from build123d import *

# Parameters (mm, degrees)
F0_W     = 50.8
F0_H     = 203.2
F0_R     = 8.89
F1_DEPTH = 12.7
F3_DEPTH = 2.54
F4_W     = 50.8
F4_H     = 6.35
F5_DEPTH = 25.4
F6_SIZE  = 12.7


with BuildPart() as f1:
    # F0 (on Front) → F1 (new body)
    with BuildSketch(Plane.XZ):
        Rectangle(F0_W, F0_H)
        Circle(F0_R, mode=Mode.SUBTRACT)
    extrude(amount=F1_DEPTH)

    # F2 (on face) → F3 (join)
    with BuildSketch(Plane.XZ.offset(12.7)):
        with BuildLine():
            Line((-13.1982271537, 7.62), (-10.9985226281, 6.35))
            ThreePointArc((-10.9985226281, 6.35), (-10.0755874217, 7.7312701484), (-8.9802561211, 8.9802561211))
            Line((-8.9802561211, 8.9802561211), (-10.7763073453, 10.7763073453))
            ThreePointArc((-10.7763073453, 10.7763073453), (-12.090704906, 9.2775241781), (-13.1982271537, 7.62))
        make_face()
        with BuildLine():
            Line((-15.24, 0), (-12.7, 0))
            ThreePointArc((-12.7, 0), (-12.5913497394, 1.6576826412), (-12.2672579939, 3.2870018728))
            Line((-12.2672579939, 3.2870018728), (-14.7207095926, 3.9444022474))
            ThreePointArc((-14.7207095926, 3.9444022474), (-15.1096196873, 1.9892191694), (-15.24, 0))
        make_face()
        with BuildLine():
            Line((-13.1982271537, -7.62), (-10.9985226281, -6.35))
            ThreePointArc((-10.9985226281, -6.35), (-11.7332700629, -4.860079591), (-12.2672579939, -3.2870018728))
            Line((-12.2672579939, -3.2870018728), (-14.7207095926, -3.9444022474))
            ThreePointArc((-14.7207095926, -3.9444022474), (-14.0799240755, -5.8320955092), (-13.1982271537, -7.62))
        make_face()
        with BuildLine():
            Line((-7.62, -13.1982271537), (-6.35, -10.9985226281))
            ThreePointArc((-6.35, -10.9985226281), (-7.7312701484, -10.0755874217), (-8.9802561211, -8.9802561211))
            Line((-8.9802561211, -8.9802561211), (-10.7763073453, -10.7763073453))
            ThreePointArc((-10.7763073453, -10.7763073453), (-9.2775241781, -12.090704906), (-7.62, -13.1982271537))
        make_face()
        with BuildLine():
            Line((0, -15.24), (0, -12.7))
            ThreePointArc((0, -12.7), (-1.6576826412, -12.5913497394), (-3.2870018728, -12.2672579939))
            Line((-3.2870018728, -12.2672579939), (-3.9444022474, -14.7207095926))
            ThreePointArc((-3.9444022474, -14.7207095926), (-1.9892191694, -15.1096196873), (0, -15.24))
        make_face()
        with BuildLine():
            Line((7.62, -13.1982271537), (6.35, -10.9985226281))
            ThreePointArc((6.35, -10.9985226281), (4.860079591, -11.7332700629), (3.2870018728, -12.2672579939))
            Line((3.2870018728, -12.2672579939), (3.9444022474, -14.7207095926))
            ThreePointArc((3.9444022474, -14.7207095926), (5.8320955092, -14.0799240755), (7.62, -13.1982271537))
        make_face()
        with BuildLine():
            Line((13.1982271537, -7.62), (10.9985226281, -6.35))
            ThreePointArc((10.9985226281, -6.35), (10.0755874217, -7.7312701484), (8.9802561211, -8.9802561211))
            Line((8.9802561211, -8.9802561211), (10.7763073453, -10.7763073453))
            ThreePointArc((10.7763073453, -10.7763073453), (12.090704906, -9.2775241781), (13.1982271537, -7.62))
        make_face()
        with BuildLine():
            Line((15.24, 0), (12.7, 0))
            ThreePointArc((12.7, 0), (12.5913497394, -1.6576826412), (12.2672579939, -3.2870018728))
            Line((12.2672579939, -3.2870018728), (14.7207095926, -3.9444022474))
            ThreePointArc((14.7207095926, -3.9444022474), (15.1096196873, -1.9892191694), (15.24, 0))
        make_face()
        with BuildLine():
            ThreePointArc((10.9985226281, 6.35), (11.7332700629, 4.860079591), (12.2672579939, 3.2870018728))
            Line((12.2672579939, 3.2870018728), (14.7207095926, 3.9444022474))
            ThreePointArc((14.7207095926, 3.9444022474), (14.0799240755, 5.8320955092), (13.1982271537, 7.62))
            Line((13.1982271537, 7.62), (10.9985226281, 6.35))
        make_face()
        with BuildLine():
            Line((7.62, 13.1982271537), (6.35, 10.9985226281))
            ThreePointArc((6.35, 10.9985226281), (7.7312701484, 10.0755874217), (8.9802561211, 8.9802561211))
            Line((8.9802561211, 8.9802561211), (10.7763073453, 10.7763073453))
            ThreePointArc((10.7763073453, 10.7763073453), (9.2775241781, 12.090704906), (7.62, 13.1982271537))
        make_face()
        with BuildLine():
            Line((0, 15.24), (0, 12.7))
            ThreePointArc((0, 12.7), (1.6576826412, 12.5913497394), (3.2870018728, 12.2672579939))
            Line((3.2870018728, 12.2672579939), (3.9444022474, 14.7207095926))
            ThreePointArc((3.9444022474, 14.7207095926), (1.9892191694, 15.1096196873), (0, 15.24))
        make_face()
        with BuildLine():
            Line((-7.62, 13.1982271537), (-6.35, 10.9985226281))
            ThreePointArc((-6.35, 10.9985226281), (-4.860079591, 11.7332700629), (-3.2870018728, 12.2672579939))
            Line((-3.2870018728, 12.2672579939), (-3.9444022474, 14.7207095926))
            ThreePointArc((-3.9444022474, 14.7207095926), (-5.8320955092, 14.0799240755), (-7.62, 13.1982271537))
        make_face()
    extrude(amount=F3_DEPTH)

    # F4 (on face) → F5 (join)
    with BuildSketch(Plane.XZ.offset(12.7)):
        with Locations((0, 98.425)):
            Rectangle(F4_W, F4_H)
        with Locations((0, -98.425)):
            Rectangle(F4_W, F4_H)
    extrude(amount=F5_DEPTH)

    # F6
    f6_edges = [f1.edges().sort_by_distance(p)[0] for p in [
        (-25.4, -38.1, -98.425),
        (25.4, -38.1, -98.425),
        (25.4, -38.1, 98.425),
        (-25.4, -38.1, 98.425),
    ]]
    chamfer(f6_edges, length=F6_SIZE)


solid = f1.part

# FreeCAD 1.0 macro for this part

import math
import FreeCAD as App
import Part
import Sketcher
from FreeCAD import Vector
Q = App.Units.Quantity


def edges_at(feature, points):
    """Names of the edges that pass closest to the given points."""
    edges = feature.Shape.Edges
    near = lambda p: min(range(len(edges)), key=lambda i: edges[i].distToShape(Part.Vertex(*p))[0])
    return sorted({f"Edge{near(p) + 1}" for p in points})

doc = App.newDocument("Part")
body = doc.addObject("PartDesign::Body", "Body")

# Sketch on XZ plane
sketch1 = doc.addObject("Sketcher::SketchObject", "Sketch")
body.addObject(sketch1)
sketch1.AttachmentSupport = (doc.XZ_Plane, [""])
sketch1.MapMode = "FlatFace"
sketch1.addGeometry([
    Part.LineSegment(Vector(-25.4, 101.6, 0), Vector(-25.4, -101.6, 0)),  # 0
    Part.LineSegment(Vector(-25.4, -101.6, 0), Vector(25.4, -101.6, 0)),  # 1
    Part.LineSegment(Vector(25.4, -101.6, 0), Vector(25.4, 101.6, 0)),  # 2
    Part.LineSegment(Vector(25.4, 101.6, 0), Vector(-25.4, 101.6, 0)),  # 3
    Part.Circle(Vector(0, 0, 0), Vector(0, 0, 1), 8.89),  # 4
], False)
sketch1.addConstraint([
    Sketcher.Constraint("Coincident", 0, 2, 1, 1),
    Sketcher.Constraint("Coincident", 1, 2, 2, 1),
    Sketcher.Constraint("Coincident", 2, 2, 3, 1),
    Sketcher.Constraint("Coincident", 3, 2, 0, 1),
    Sketcher.Constraint("Vertical", 0),
    Sketcher.Constraint("Horizontal", 1),
    Sketcher.Constraint("Vertical", 2),
    Sketcher.Constraint("Horizontal", 3),
    Sketcher.Constraint("Coincident", 4, 3, -1, 1),
    Sketcher.Constraint("Symmetric", 0, 2, 2, 2, -1, 1),
    Sketcher.Constraint("Diameter", 4, Q("0.7 in")),
    Sketcher.Constraint("DistanceX", 1, 1, 1, 2, Q("2 in")),
    Sketcher.Constraint("DistanceY", 0, 2, 0, 1, Q("8 in")),
])
pad1 = doc.addObject("PartDesign::Pad", "Pad")
body.addObject(pad1)
pad1.Profile = sketch1
pad1.Length = Q("0.5 in")

# Sketch on XZ plane
sketch2 = doc.addObject("Sketcher::SketchObject", "Sketch001")
body.addObject(sketch2)
sketch2.AttachmentSupport = (doc.XZ_Plane, [""])
sketch2.MapMode = "FlatFace"
sketch2.AttachmentOffset = App.Placement(Vector(0, 0, 0.5 * 25.4), App.Rotation())
sketch2.addGeometry([
    Part.LineSegment(Vector(-13.198227, 7.62, 0), Vector(-10.998523, 6.35, 0)),  # 0
    Part.ArcOfCircle(Part.Circle(Vector(0, 0, 0), Vector(0, 0, 1), 12.7), math.radians(135), math.radians(150)),  # 1
    Part.LineSegment(Vector(-8.980256, 8.980256, 0), Vector(-10.776307, 10.776307, 0)),  # 2
    Part.ArcOfCircle(Part.Circle(Vector(0, 0, 0), Vector(0, 0, 1), 15.24), math.radians(135), math.radians(150)),  # 3
    Part.LineSegment(Vector(-15.24, 0, 0), Vector(-12.7, 0, 0)),  # 4
    Part.ArcOfCircle(Part.Circle(Vector(0, 0, 0), Vector(0, 0, 1), 12.7), math.radians(165), math.radians(180)),  # 5
    Part.LineSegment(Vector(-12.267258, 3.287002, 0), Vector(-14.72071, 3.944402, 0)),  # 6
    Part.ArcOfCircle(Part.Circle(Vector(0, 0, 0), Vector(0, 0, 1), 15.24), math.radians(165), math.radians(180)),  # 7
    Part.LineSegment(Vector(-13.198227, -7.62, 0), Vector(-10.998523, -6.35, 0)),  # 8
    Part.ArcOfCircle(Part.Circle(Vector(0, 0, 0), Vector(0, 0, 1), 12.7), math.radians(-165), math.radians(-150)),  # 9
    Part.LineSegment(Vector(-12.267258, -3.287002, 0), Vector(-14.72071, -3.944402, 0)),  # 10
    Part.ArcOfCircle(Part.Circle(Vector(0, 0, 0), Vector(0, 0, 1), 15.24), math.radians(-165), math.radians(-150)),  # 11
    Part.LineSegment(Vector(-7.62, -13.198227, 0), Vector(-6.35, -10.998523, 0)),  # 12
    Part.ArcOfCircle(Part.Circle(Vector(0, 0, 0), Vector(0, 0, 1), 12.7), math.radians(-135), math.radians(-120)),  # 13
    Part.LineSegment(Vector(-8.980256, -8.980256, 0), Vector(-10.776307, -10.776307, 0)),  # 14
    Part.ArcOfCircle(Part.Circle(Vector(0, 0, 0), Vector(0, 0, 1), 15.24), math.radians(-135), math.radians(-120)),  # 15
    Part.LineSegment(Vector(0, -15.24, 0), Vector(0, -12.7, 0)),  # 16
    Part.ArcOfCircle(Part.Circle(Vector(0, 0, 0), Vector(0, 0, 1), 12.7), math.radians(-105), math.radians(-90)),  # 17
    Part.LineSegment(Vector(-3.287002, -12.267258, 0), Vector(-3.944402, -14.72071, 0)),  # 18
    Part.ArcOfCircle(Part.Circle(Vector(0, 0, 0), Vector(0, 0, 1), 15.24), math.radians(-105), math.radians(-90)),  # 19
    Part.LineSegment(Vector(7.62, -13.198227, 0), Vector(6.35, -10.998523, 0)),  # 20
    Part.ArcOfCircle(Part.Circle(Vector(0, 0, 0), Vector(0, 0, 1), 12.7), math.radians(-75), math.radians(-60)),  # 21
    Part.LineSegment(Vector(3.287002, -12.267258, 0), Vector(3.944402, -14.72071, 0)),  # 22
    Part.ArcOfCircle(Part.Circle(Vector(0, 0, 0), Vector(0, 0, 1), 15.24), math.radians(-75), math.radians(-60)),  # 23
    Part.LineSegment(Vector(13.198227, -7.62, 0), Vector(10.998523, -6.35, 0)),  # 24
    Part.ArcOfCircle(Part.Circle(Vector(0, 0, 0), Vector(0, 0, 1), 12.7), math.radians(-45), math.radians(-30)),  # 25
    Part.LineSegment(Vector(8.980256, -8.980256, 0), Vector(10.776307, -10.776307, 0)),  # 26
    Part.ArcOfCircle(Part.Circle(Vector(0, 0, 0), Vector(0, 0, 1), 15.24), math.radians(-45), math.radians(-30)),  # 27
    Part.LineSegment(Vector(15.24, 0, 0), Vector(12.7, 0, 0)),  # 28
    Part.ArcOfCircle(Part.Circle(Vector(0, 0, 0), Vector(0, 0, 1), 12.7), math.radians(-15), math.radians(0)),  # 29
    Part.LineSegment(Vector(12.267258, -3.287002, 0), Vector(14.72071, -3.944402, 0)),  # 30
    Part.ArcOfCircle(Part.Circle(Vector(0, 0, 0), Vector(0, 0, 1), 15.24), math.radians(-15), math.radians(0)),  # 31
    Part.ArcOfCircle(Part.Circle(Vector(0, 0, 0), Vector(0, 0, 1), 12.7), math.radians(15), math.radians(30)),  # 32
    Part.LineSegment(Vector(12.267258, 3.287002, 0), Vector(14.72071, 3.944402, 0)),  # 33
    Part.ArcOfCircle(Part.Circle(Vector(0, 0, 0), Vector(0, 0, 1), 15.24), math.radians(15), math.radians(30)),  # 34
    Part.LineSegment(Vector(13.198227, 7.62, 0), Vector(10.998523, 6.35, 0)),  # 35
    Part.LineSegment(Vector(7.62, 13.198227, 0), Vector(6.35, 10.998523, 0)),  # 36
    Part.ArcOfCircle(Part.Circle(Vector(0, 0, 0), Vector(0, 0, 1), 12.7), math.radians(45), math.radians(60)),  # 37
    Part.LineSegment(Vector(8.980256, 8.980256, 0), Vector(10.776307, 10.776307, 0)),  # 38
    Part.ArcOfCircle(Part.Circle(Vector(0, 0, 0), Vector(0, 0, 1), 15.24), math.radians(45), math.radians(60)),  # 39
    Part.LineSegment(Vector(0, 15.24, 0), Vector(0, 12.7, 0)),  # 40
    Part.ArcOfCircle(Part.Circle(Vector(0, 0, 0), Vector(0, 0, 1), 12.7), math.radians(75), math.radians(90)),  # 41
    Part.LineSegment(Vector(3.287002, 12.267258, 0), Vector(3.944402, 14.72071, 0)),  # 42
    Part.ArcOfCircle(Part.Circle(Vector(0, 0, 0), Vector(0, 0, 1), 15.24), math.radians(75), math.radians(90)),  # 43
    Part.LineSegment(Vector(-7.62, 13.198227, 0), Vector(-6.35, 10.998523, 0)),  # 44
    Part.ArcOfCircle(Part.Circle(Vector(0, 0, 0), Vector(0, 0, 1), 12.7), math.radians(105), math.radians(120)),  # 45
    Part.LineSegment(Vector(-3.287002, 12.267258, 0), Vector(-3.944402, 14.72071, 0)),  # 46
    Part.ArcOfCircle(Part.Circle(Vector(0, 0, 0), Vector(0, 0, 1), 15.24), math.radians(105), math.radians(120)),  # 47
], False)
sketch2.addConstraint([
    Sketcher.Constraint("Coincident", 0, 2, 1, 2),
    Sketcher.Constraint("Coincident", 1, 1, 2, 1),
    Sketcher.Constraint("Coincident", 2, 2, 3, 1),
    Sketcher.Constraint("Coincident", 3, 2, 0, 1),
    Sketcher.Constraint("Coincident", 4, 2, 5, 2),
    Sketcher.Constraint("Coincident", 5, 1, 6, 1),
    Sketcher.Constraint("Coincident", 6, 2, 7, 1),
    Sketcher.Constraint("Coincident", 7, 2, 4, 1),
    Sketcher.Constraint("Coincident", 8, 2, 9, 2),
    Sketcher.Constraint("Coincident", 9, 1, 10, 1),
    Sketcher.Constraint("Coincident", 10, 2, 11, 1),
    Sketcher.Constraint("Coincident", 11, 2, 8, 1),
    Sketcher.Constraint("Coincident", 12, 2, 13, 2),
    Sketcher.Constraint("Coincident", 13, 1, 14, 1),
    Sketcher.Constraint("Coincident", 14, 2, 15, 1),
    Sketcher.Constraint("Coincident", 15, 2, 12, 1),
    Sketcher.Constraint("Coincident", 16, 2, 17, 2),
    Sketcher.Constraint("Coincident", 17, 1, 18, 1),
    Sketcher.Constraint("Coincident", 18, 2, 19, 1),
    Sketcher.Constraint("Coincident", 19, 2, 16, 1),
    Sketcher.Constraint("Coincident", 20, 2, 21, 2),
    Sketcher.Constraint("Coincident", 21, 1, 22, 1),
    Sketcher.Constraint("Coincident", 22, 2, 23, 1),
    Sketcher.Constraint("Coincident", 23, 2, 20, 1),
    Sketcher.Constraint("Coincident", 24, 2, 25, 2),
    Sketcher.Constraint("Coincident", 25, 1, 26, 1),
    Sketcher.Constraint("Coincident", 26, 2, 27, 1),
    Sketcher.Constraint("Coincident", 27, 2, 24, 1),
    Sketcher.Constraint("Coincident", 28, 2, 29, 2),
    Sketcher.Constraint("Coincident", 29, 1, 30, 1),
    Sketcher.Constraint("Coincident", 30, 2, 31, 1),
    Sketcher.Constraint("Coincident", 31, 2, 28, 1),
    Sketcher.Constraint("Coincident", 32, 1, 33, 1),
    Sketcher.Constraint("Coincident", 33, 2, 34, 1),
    Sketcher.Constraint("Coincident", 34, 2, 35, 1),
    Sketcher.Constraint("Coincident", 35, 2, 32, 2),
    Sketcher.Constraint("Coincident", 36, 2, 37, 2),
    Sketcher.Constraint("Coincident", 37, 1, 38, 1),
    Sketcher.Constraint("Coincident", 38, 2, 39, 1),
    Sketcher.Constraint("Coincident", 39, 2, 36, 1),
    Sketcher.Constraint("Coincident", 40, 2, 41, 2),
    Sketcher.Constraint("Coincident", 41, 1, 42, 1),
    Sketcher.Constraint("Coincident", 42, 2, 43, 1),
    Sketcher.Constraint("Coincident", 43, 2, 40, 1),
    Sketcher.Constraint("Coincident", 44, 2, 45, 2),
    Sketcher.Constraint("Coincident", 45, 1, 46, 1),
    Sketcher.Constraint("Coincident", 46, 2, 47, 1),
    Sketcher.Constraint("Coincident", 47, 2, 44, 1),
    Sketcher.Constraint("Horizontal", 4),
    Sketcher.Constraint("Vertical", 16),
    Sketcher.Constraint("Horizontal", 28),
    Sketcher.Constraint("Vertical", 40),
    Sketcher.Constraint("Coincident", 1, 3, -1, 1),
    Sketcher.Constraint("Coincident", 3, 3, -1, 1),
    Sketcher.Constraint("Coincident", 5, 3, -1, 1),
    Sketcher.Constraint("Coincident", 7, 3, -1, 1),
    Sketcher.Constraint("Coincident", 9, 3, -1, 1),
    Sketcher.Constraint("Coincident", 11, 3, -1, 1),
    Sketcher.Constraint("Coincident", 13, 3, -1, 1),
    Sketcher.Constraint("Coincident", 15, 3, -1, 1),
    Sketcher.Constraint("Coincident", 17, 3, -1, 1),
    Sketcher.Constraint("Coincident", 19, 3, -1, 1),
    Sketcher.Constraint("Coincident", 21, 3, -1, 1),
    Sketcher.Constraint("Coincident", 23, 3, -1, 1),
    Sketcher.Constraint("Coincident", 25, 3, -1, 1),
    Sketcher.Constraint("Coincident", 27, 3, -1, 1),
    Sketcher.Constraint("Coincident", 29, 3, -1, 1),
    Sketcher.Constraint("Coincident", 31, 3, -1, 1),
    Sketcher.Constraint("Coincident", 32, 3, -1, 1),
    Sketcher.Constraint("Coincident", 34, 3, -1, 1),
    Sketcher.Constraint("Coincident", 37, 3, -1, 1),
    Sketcher.Constraint("Coincident", 39, 3, -1, 1),
    Sketcher.Constraint("Coincident", 41, 3, -1, 1),
    Sketcher.Constraint("Coincident", 43, 3, -1, 1),
    Sketcher.Constraint("Coincident", 45, 3, -1, 1),
    Sketcher.Constraint("Coincident", 47, 3, -1, 1),
    Sketcher.Constraint("Equal", 1, 5),
    Sketcher.Constraint("Equal", 3, 7),
    Sketcher.Constraint("Equal", 5, 9),
    Sketcher.Constraint("Equal", 7, 11),
    Sketcher.Constraint("Equal", 9, 13),
    Sketcher.Constraint("Equal", 11, 15),
    Sketcher.Constraint("Equal", 13, 17),
    Sketcher.Constraint("Equal", 15, 19),
    Sketcher.Constraint("Equal", 17, 21),
    Sketcher.Constraint("Equal", 19, 23),
    Sketcher.Constraint("Equal", 21, 25),
    Sketcher.Constraint("Equal", 23, 27),
    Sketcher.Constraint("Equal", 25, 29),
    Sketcher.Constraint("Equal", 27, 31),
    Sketcher.Constraint("Equal", 29, 32),
    Sketcher.Constraint("Equal", 31, 34),
    Sketcher.Constraint("Equal", 32, 37),
    Sketcher.Constraint("Equal", 34, 39),
    Sketcher.Constraint("Equal", 37, 41),
    Sketcher.Constraint("Equal", 39, 43),
    Sketcher.Constraint("Equal", 41, 45),
    Sketcher.Constraint("Equal", 43, 47),
    Sketcher.Constraint("PointOnObject", 4, 2, -1),
    Sketcher.Constraint("PointOnObject", 16, 2, -2),
    Sketcher.Constraint("PointOnObject", 28, 2, -1),
    Sketcher.Constraint("PointOnObject", 40, 2, -2),
    Sketcher.Constraint("Perpendicular", 0, 12),
    Sketcher.Constraint("Perpendicular", 2, 14),
    Sketcher.Constraint("Perpendicular", 6, 18),
    Sketcher.Constraint("Perpendicular", 8, 20),
    Sketcher.Constraint("Perpendicular", 10, 22),
    Sketcher.Constraint("Perpendicular", 12, 24),
    Sketcher.Constraint("Perpendicular", 14, 26),
    Sketcher.Constraint("Perpendicular", 18, 30),
    Sketcher.Constraint("Perpendicular", 22, 33),
    Sketcher.Constraint("Perpendicular", 20, 35),
    Sketcher.Constraint("Perpendicular", 24, 36),
    Sketcher.Constraint("Perpendicular", 26, 38),
    Sketcher.Constraint("Perpendicular", 30, 42),
    Sketcher.Constraint("Perpendicular", 35, 44),
    Sketcher.Constraint("Perpendicular", 33, 46),
    Sketcher.Constraint("Horizontal", 12, 2, 20, 2),
    Sketcher.Constraint("Horizontal", 17, 1, 21, 1),
    Sketcher.Constraint("Horizontal", 18, 2, 22, 2),
    Sketcher.Constraint("Horizontal", 15, 2, 23, 2),
    Sketcher.Constraint("Horizontal", 8, 2, 24, 2),
    Sketcher.Constraint("Horizontal", 13, 1, 25, 1),
    Sketcher.Constraint("Horizontal", 14, 2, 26, 2),
    Sketcher.Constraint("Horizontal", 9, 1, 29, 1),
    Sketcher.Constraint("Horizontal", 5, 1, 32, 1),
    Sketcher.Constraint("Horizontal", 3, 2, 34, 2),
    Sketcher.Constraint("Horizontal", 1, 1, 37, 1),
    Sketcher.Constraint("Horizontal", 36, 2, 44, 2),
    Sketcher.Constraint("Horizontal", 41, 1, 45, 1),
    Sketcher.Constraint("Vertical", 0, 2, 8, 2),
    Sketcher.Constraint("Vertical", 5, 1, 9, 1),
    Sketcher.Constraint("Vertical", 1, 1, 13, 1),
    Sketcher.Constraint("Vertical", 20, 2, 36, 2),
    Sketcher.Constraint("Vertical", 21, 1, 41, 1),
    Sketcher.Constraint("Radius", 1, Q("0.5 in")),
    Sketcher.Constraint("Radius", 3, Q("0.6 in")),
    Sketcher.Constraint("Angle", 0, Q("-30 deg")),
    Sketcher.Constraint("Angle", 6, Q("165 deg")),
    Sketcher.Constraint("DistanceY", -1, 1, 3, 2, Q("0.3 in")),
    Sketcher.Constraint("DistanceX", 15, 2, -1, 1, Q("0.3 in")),
    Sketcher.Constraint("DistanceY", -1, 1, 5, 1, Q("3.287002 mm")),
    Sketcher.Constraint("DistanceX", 17, 1, -1, 1, Q("3.287002 mm")),
    Sketcher.Constraint("DistanceX", 1, 1, -1, 1, Q("8.980256 mm")),
])
pad2 = doc.addObject("PartDesign::Pad", "Pad001")
body.addObject(pad2)
pad2.Profile = sketch2
pad2.Length = Q("0.1 in")

# Sketch on XZ plane
sketch3 = doc.addObject("Sketcher::SketchObject", "Sketch002")
body.addObject(sketch3)
sketch3.AttachmentSupport = (doc.XZ_Plane, [""])
sketch3.MapMode = "FlatFace"
sketch3.AttachmentOffset = App.Placement(Vector(0, 0, 0.5 * 25.4), App.Rotation())
sketch3.addGeometry([
    Part.LineSegment(Vector(-25.4, 101.6, 0), Vector(-25.4, 95.25, 0)),  # 0
    Part.LineSegment(Vector(-25.4, 95.25, 0), Vector(25.4, 95.25, 0)),  # 1
    Part.LineSegment(Vector(25.4, 95.25, 0), Vector(25.4, 101.6, 0)),  # 2
    Part.LineSegment(Vector(25.4, 101.6, 0), Vector(-25.4, 101.6, 0)),  # 3
    Part.LineSegment(Vector(-25.4, -95.25, 0), Vector(-25.4, -101.6, 0)),  # 4
    Part.LineSegment(Vector(-25.4, -101.6, 0), Vector(25.4, -101.6, 0)),  # 5
    Part.LineSegment(Vector(25.4, -101.6, 0), Vector(25.4, -95.25, 0)),  # 6
    Part.LineSegment(Vector(25.4, -95.25, 0), Vector(-25.4, -95.25, 0)),  # 7
], False)
sketch3.addConstraint([
    Sketcher.Constraint("Coincident", 0, 2, 1, 1),
    Sketcher.Constraint("Coincident", 1, 2, 2, 1),
    Sketcher.Constraint("Coincident", 2, 2, 3, 1),
    Sketcher.Constraint("Coincident", 3, 2, 0, 1),
    Sketcher.Constraint("Coincident", 4, 2, 5, 1),
    Sketcher.Constraint("Coincident", 5, 2, 6, 1),
    Sketcher.Constraint("Coincident", 6, 2, 7, 1),
    Sketcher.Constraint("Coincident", 7, 2, 4, 1),
    Sketcher.Constraint("Vertical", 0),
    Sketcher.Constraint("Horizontal", 1),
    Sketcher.Constraint("Vertical", 2),
    Sketcher.Constraint("Horizontal", 3),
    Sketcher.Constraint("Vertical", 4),
    Sketcher.Constraint("Horizontal", 5),
    Sketcher.Constraint("Vertical", 6),
    Sketcher.Constraint("Horizontal", 7),
    Sketcher.Constraint("Symmetric", 2, 2, 4, 2, -1, 1),
    Sketcher.Constraint("Symmetric", 0, 2, 6, 2, -1, 1),
    Sketcher.Constraint("Vertical", 3, 2, 4, 2),
    Sketcher.Constraint("DistanceX", 1, 1, 1, 2, Q("2 in")),
    Sketcher.Constraint("DistanceY", -1, 1, 2, 2, Q("4 in")),
    Sketcher.Constraint("DistanceY", 0, 2, 0, 1, Q("0.25 in")),
])
pad3 = doc.addObject("PartDesign::Pad", "Pad002")
body.addObject(pad3)
pad3.Profile = sketch3
pad3.Length = Q("1 in")
doc.recompute()

chamfer = doc.addObject("PartDesign::Chamfer", "Chamfer")
body.addObject(chamfer)
chamfer.Base = (pad3, edges_at(pad3, [
    (-25.4, -38.1, -98.425),
    (25.4, -38.1, -98.425),
    (25.4, -38.1, 98.425),
    (-25.4, -38.1, 98.425),
]))
chamfer.Size = Q("0.5 in")

doc.recompute()
